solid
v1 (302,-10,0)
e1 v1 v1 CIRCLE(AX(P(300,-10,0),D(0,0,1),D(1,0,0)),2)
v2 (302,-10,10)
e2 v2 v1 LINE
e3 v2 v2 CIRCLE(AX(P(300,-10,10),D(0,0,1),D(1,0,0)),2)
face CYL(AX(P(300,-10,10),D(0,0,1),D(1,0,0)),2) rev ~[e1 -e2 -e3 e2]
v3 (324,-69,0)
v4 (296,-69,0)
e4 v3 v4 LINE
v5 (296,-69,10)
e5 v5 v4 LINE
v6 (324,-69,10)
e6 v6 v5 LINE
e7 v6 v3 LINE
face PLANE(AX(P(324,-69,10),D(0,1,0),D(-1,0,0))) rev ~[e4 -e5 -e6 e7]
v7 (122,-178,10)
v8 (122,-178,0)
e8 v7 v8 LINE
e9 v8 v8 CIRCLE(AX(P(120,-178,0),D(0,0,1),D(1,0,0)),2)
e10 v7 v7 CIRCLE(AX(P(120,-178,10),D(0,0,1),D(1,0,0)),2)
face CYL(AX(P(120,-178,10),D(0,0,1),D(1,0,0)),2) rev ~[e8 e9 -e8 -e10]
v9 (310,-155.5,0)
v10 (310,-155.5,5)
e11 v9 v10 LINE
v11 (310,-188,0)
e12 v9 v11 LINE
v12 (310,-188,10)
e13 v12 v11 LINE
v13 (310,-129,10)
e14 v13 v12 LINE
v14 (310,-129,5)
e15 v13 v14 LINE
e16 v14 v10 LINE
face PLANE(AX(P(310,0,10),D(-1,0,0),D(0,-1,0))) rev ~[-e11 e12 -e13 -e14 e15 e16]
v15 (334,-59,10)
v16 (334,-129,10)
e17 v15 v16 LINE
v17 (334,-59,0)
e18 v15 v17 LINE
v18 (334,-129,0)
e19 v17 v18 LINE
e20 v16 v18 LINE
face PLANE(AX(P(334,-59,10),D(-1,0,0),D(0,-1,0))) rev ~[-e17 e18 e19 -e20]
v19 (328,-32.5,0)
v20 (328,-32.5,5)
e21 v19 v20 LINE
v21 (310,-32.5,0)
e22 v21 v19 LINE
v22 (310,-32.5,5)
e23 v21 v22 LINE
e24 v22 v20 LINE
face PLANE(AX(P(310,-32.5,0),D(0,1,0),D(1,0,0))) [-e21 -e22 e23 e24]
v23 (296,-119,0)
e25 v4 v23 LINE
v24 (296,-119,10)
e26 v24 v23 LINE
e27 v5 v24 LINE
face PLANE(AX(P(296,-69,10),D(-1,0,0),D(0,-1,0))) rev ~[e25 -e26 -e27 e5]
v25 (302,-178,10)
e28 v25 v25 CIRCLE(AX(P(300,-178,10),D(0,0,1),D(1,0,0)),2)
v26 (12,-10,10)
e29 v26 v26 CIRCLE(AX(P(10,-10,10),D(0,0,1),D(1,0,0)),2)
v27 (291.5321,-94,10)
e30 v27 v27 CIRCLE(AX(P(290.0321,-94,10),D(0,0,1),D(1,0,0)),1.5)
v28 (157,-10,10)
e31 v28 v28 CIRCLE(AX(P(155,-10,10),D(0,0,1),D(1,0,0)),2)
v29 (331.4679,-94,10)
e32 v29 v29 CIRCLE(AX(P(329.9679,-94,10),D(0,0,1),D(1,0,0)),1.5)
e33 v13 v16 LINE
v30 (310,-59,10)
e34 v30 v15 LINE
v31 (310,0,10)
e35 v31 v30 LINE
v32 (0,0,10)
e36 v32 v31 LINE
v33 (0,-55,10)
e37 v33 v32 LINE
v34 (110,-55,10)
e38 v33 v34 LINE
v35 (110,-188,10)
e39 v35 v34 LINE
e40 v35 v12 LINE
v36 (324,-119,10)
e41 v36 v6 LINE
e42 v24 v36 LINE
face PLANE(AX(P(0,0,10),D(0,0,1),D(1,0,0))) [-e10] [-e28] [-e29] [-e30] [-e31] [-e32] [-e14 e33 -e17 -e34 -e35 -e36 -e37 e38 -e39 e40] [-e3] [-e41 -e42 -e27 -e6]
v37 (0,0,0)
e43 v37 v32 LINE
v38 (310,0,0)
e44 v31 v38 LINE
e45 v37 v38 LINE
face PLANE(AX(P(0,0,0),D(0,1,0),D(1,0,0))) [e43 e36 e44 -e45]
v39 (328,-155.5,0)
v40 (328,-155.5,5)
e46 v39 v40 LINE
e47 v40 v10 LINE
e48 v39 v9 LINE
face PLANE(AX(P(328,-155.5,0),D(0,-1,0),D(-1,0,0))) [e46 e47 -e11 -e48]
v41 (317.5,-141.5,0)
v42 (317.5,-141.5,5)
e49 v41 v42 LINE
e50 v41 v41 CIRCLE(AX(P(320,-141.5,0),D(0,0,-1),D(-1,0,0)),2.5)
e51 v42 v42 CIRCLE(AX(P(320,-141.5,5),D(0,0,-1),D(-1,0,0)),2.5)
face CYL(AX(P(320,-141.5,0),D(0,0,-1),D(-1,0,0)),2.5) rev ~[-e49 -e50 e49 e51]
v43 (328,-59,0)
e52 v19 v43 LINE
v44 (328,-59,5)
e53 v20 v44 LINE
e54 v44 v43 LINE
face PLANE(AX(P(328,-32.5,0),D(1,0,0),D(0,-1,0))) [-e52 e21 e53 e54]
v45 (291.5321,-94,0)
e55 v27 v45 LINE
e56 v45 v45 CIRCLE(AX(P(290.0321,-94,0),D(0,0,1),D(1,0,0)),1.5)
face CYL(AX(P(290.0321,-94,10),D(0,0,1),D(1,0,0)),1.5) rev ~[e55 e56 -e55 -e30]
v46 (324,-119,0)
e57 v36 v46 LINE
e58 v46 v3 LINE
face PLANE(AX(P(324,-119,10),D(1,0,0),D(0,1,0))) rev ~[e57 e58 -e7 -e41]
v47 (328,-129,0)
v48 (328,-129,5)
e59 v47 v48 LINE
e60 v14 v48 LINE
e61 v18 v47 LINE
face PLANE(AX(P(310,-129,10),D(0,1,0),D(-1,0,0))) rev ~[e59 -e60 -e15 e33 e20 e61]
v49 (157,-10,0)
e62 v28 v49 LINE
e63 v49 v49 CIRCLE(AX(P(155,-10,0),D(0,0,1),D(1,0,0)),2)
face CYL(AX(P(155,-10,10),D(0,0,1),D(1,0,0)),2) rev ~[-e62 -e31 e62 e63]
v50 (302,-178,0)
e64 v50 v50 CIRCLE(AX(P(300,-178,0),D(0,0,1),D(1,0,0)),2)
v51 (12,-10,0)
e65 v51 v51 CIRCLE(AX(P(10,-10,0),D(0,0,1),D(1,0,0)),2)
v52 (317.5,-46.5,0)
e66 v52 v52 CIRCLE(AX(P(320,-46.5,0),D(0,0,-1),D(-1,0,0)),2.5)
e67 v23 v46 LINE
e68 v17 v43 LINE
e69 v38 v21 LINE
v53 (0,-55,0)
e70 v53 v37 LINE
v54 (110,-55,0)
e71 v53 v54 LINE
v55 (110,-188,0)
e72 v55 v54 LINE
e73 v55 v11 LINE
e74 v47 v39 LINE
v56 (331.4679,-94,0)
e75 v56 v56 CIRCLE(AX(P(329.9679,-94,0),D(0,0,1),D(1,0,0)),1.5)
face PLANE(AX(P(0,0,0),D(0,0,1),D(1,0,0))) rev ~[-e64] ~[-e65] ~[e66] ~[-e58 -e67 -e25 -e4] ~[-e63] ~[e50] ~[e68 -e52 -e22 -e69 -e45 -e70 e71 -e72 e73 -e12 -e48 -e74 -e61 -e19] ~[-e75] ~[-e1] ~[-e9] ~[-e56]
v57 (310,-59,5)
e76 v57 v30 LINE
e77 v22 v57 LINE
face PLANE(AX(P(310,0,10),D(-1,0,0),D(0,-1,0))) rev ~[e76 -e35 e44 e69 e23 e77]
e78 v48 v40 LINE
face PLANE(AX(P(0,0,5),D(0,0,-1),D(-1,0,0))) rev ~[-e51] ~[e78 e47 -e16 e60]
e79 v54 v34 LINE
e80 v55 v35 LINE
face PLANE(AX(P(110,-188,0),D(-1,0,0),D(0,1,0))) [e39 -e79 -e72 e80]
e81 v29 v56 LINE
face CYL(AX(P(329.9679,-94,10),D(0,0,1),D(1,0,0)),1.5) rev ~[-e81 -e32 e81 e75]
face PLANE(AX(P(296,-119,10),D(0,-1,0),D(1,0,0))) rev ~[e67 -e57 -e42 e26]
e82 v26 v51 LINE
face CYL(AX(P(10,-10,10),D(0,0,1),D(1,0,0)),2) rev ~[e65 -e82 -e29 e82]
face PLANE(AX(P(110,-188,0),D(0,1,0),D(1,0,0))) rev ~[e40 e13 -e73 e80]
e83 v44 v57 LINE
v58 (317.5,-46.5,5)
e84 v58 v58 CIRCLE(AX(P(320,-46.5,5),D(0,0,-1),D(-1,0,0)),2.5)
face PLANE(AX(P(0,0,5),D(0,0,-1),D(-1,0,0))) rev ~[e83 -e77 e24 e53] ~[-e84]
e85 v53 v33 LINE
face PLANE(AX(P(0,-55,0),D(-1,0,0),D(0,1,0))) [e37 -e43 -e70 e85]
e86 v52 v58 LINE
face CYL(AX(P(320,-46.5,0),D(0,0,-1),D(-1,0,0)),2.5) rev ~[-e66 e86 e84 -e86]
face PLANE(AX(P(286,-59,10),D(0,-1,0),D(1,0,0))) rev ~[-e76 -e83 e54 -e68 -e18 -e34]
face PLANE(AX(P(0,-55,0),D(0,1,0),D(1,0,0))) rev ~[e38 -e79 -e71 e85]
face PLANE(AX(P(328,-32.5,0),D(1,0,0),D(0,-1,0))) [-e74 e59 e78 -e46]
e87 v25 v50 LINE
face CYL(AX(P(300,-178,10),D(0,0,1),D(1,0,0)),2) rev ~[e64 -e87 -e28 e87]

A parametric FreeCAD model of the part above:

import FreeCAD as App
import Part
import Sketcher
Q = App.Units.Quantity

doc = App.newDocument("Part")
body = doc.addObject("PartDesign::Body", "Body")

# Sketch on XY plane
sketch1 = doc.addObject("Sketcher::SketchObject", "Sketch")
body.addObject(sketch1)
sketch1.AttachmentSupport = (doc.XY_Plane, [""])
sketch1.MapMode = "FlatFace"
sketch1.addGeometry([
    Part.LineSegment(App.Vector(620, 0, 0), App.Vector(0, 0, 0)),  # 0
    Part.LineSegment(App.Vector(0, 0, 0), App.Vector(0, -55, 0)),  # 1
    Part.LineSegment(App.Vector(0, -55, 0), App.Vector(110, -55, 0)),  # 2
    Part.LineSegment(App.Vector(110, -55, 0), App.Vector(110, -188, 0)),  # 3
    Part.LineSegment(App.Vector(110, -188, 0), App.Vector(510, -188, 0)),  # 4
    Part.LineSegment(App.Vector(510, -188, 0), App.Vector(510, -55, 0)),  # 5
    Part.LineSegment(App.Vector(510, -55, 0), App.Vector(620, -55, 0)),  # 6
    Part.LineSegment(App.Vector(620, -55, 0), App.Vector(620, 0, 0)),  # 7
], False)
sketch1.addConstraint([
    Sketcher.Constraint("Coincident", 0, 2, 1, 1),
    Sketcher.Constraint("Coincident", 1, 2, 2, 1),
    Sketcher.Constraint("Coincident", 2, 2, 3, 1),
    Sketcher.Constraint("Coincident", 3, 2, 4, 1),
    Sketcher.Constraint("Coincident", 4, 2, 5, 1),
    Sketcher.Constraint("Coincident", 5, 2, 6, 1),
    Sketcher.Constraint("Coincident", 6, 2, 7, 1),
    Sketcher.Constraint("Coincident", 7, 2, 0, 1),
    Sketcher.Constraint("Horizontal", 0),
    Sketcher.Constraint("Vertical", 1),
    Sketcher.Constraint("Horizontal", 2),
    Sketcher.Constraint("Vertical", 3),
    Sketcher.Constraint("Horizontal", 4),
    Sketcher.Constraint("Vertical", 5),
    Sketcher.Constraint("Horizontal", 6),
    Sketcher.Constraint("Vertical", 7),
    Sketcher.Constraint("Coincident", 0, 2, -1, 1),
    Sketcher.Constraint("Horizontal", 2, 2, 5, 2),
    Sketcher.Constraint("Equal", 2, 6),
    Sketcher.Constraint("DistanceX", 0, 2, 0, 1, Q("620 mm")),
    Sketcher.Constraint("DistanceX", 4, 1, 4, 2, Q("400 mm")),
    Sketcher.Constraint("DistanceY", 3, 2, 3, 1, Q("133 mm")),
    Sketcher.Constraint("DistanceY", 3, 2, -1, 1, Q("188 mm")),
])
pad1 = doc.addObject("PartDesign::Pad", "Pad")
body.addObject(pad1)
pad1.Profile = sketch1
pad1.Length = 10

# Sketch on XY plane
sketch2 = doc.addObject("Sketcher::SketchObject", "Sketch001")
body.addObject(sketch2)
sketch2.AttachmentSupport = (doc.XY_Plane, [""])
sketch2.MapMode = "FlatFace"
sketch2.AttachmentOffset = App.Placement(App.Vector(0, 0, 10), App.Rotation())
sketch2.addGeometry([
    Part.LineSegment(App.Vector(620, -188, 0), App.Vector(620, 0, 0)),
    Part.LineSegment(App.Vector(620, 0, 0), App.Vector(310, 0, 0)),
    Part.LineSegment(App.Vector(310, 0, 0), App.Vector(310, -188, 0)),
    Part.LineSegment(App.Vector(310, -188, 0), App.Vector(620, -188, 0)),
], False)
sketch2.addConstraint([
    Sketcher.Constraint("Coincident", 0, 2, 1, 1),
    Sketcher.Constraint("Coincident", 1, 2, 2, 1),
    Sketcher.Constraint("Coincident", 2, 2, 3, 1),
    Sketcher.Constraint("Coincident", 3, 2, 0, 1),
    Sketcher.Constraint("Vertical", 0),
    Sketcher.Constraint("Horizontal", 1),
    Sketcher.Constraint("Vertical", 2),
    Sketcher.Constraint("Horizontal", 3),
    Sketcher.Constraint("PointOnObject", 0, 2, -1),
    Sketcher.Constraint("DistanceX", 1, 2, 1, 1, Q("310 mm")),
    Sketcher.Constraint("DistanceY", 0, 1, 0, 2, Q("188 mm")),
    Sketcher.Constraint("DistanceX", -1, 1, 0, 2, Q("620 mm")),
])
pocket1 = doc.addObject("PartDesign::Pocket", "Pocket")
body.addObject(pocket1)
pocket1.Profile = sketch2
pocket1.Type = "ThroughAll"

# Sketch on XY plane
sketch3 = doc.addObject("Sketcher::SketchObject", "Sketch002")
body.addObject(sketch3)
sketch3.AttachmentSupport = (doc.XY_Plane, [""])
sketch3.MapMode = "FlatFace"
sketch3.AttachmentOffset = App.Placement(App.Vector(0, 0, 10), App.Rotation())
sketch3.addGeometry([
    Part.Circle(App.Vector(10, -10, 0), App.Vector(0, 0, 1), 2),  # 0
    Part.Circle(App.Vector(155, -10, 0), App.Vector(0, 0, 1), 2),  # 1
    Part.Circle(App.Vector(300, -10, 0), App.Vector(0, 0, 1), 2),  # 2
    Part.Circle(App.Vector(120, -178, 0), App.Vector(0, 0, 1), 2),  # 3
    Part.Circle(App.Vector(300, -178, 0), App.Vector(0, 0, 1), 2),  # 4
], False)
sketch3.addConstraint([
    Sketcher.Constraint("Equal", 0, 1),
    Sketcher.Constraint("Equal", 1, 2),
    Sketcher.Constraint("Equal", 2, 3),
    Sketcher.Constraint("Equal", 3, 4),
    Sketcher.Constraint("Horizontal", 0, 3, 1, 3),
    Sketcher.Constraint("Horizontal", 1, 3, 2, 3),
    Sketcher.Constraint("Horizontal", 3, 3, 4, 3),
    Sketcher.Constraint("Vertical", 2, 3, 4, 3),
    Sketcher.Constraint("Diameter", 0, Q("4 mm")),
    Sketcher.Constraint("DistanceX", -1, 1, 0, 3, Q("10 mm")),
    Sketcher.Constraint("DistanceY", 0, 3, -1, 1, Q("10 mm")),
    Sketcher.Constraint("DistanceX", -1, 1, 1, 3, Q("155 mm")),
    Sketcher.Constraint("DistanceX", -1, 1, 2, 3, Q("300 mm")),
    Sketcher.Constraint("DistanceX", -1, 1, 3, 3, Q("120 mm")),
    Sketcher.Constraint("DistanceY", 3, 3, -1, 1, Q("178 mm")),
])
pocket2 = doc.addObject("PartDesign::Pocket", "Pocket001")
body.addObject(pocket2)
pocket2.Profile = sketch3
pocket2.Type = "ThroughAll"

# Sketch on XY plane
sketch4 = doc.addObject("Sketcher::SketchObject", "Sketch003")
body.addObject(sketch4)
sketch4.AttachmentSupport = (doc.XY_Plane, [""])
sketch4.MapMode = "FlatFace"
sketch4.addGeometry([
    Part.LineSegment(App.Vector(310, -155.5, 0), App.Vector(310, -32.5, 0)),  # 0
    Part.LineSegment(App.Vector(310, -32.5, 0), App.Vector(328, -32.5, 0)),  # 1
    Part.LineSegment(App.Vector(328, -32.5, 0), App.Vector(328, -155.5, 0)),  # 2
    Part.LineSegment(App.Vector(328, -155.5, 0), App.Vector(310, -155.5, 0)),  # 3
    Part.Circle(App.Vector(320, -141.5, 0), App.Vector(0, 0, 1), 2.5),  # 4
    Part.Circle(App.Vector(320, -46.5, 0), App.Vector(0, 0, 1), 2.5),  # 5
], False)
sketch4.addConstraint([
    Sketcher.Constraint("Coincident", 0, 2, 1, 1),
    Sketcher.Constraint("Coincident", 1, 2, 2, 1),
    Sketcher.Constraint("Coincident", 2, 2, 3, 1),
    Sketcher.Constraint("Coincident", 3, 2, 0, 1),
    Sketcher.Constraint("Vertical", 0),
    Sketcher.Constraint("Horizontal", 1),
    Sketcher.Constraint("Vertical", 2),
    Sketcher.Constraint("Horizontal", 3),
    Sketcher.Constraint("Equal", 4, 5),
    Sketcher.Constraint("Vertical", 4, 3, 5, 3),
    Sketcher.Constraint("Diameter", 4, Q("5 mm")),
    Sketcher.Constraint("DistanceX", 1, 1, 1, 2, Q("18 mm")),
    Sketcher.Constraint("DistanceY", 0, 1, 0, 2, Q("123 mm")),
    Sketcher.Constraint("DistanceY", 4, 3, 5, 3, Q("95 mm")),
    Sketcher.Constraint("DistanceX", 0, 2, 5, 3, Q("10 mm")),
    Sketcher.Constraint("DistanceX", -1, 1, 4, 3, Q("320 mm")),
    Sketcher.Constraint("DistanceY", 5, 3, 0, 2, Q("14 mm")),
    Sketcher.Constraint("DistanceY", 4, 3, -1, 1, Q("141.5 mm")),
])
pad2 = doc.addObject("PartDesign::Pad", "Pad001")
body.addObject(pad2)
pad2.Profile = sketch4
pad2.Length = 5

# Sketch on XY plane
sketch5 = doc.addObject("Sketcher::SketchObject", "Sketch004")
body.addObject(sketch5)
sketch5.AttachmentSupport = (doc.XY_Plane, [""])
sketch5.MapMode = "FlatFace"
sketch5.AttachmentOffset = App.Placement(App.Vector(0, 0, 10), App.Rotation())
sketch5.addGeometry([
    Part.LineSegment(App.Vector(286, -59, 0), App.Vector(286, -129, 0)),
    Part.LineSegment(App.Vector(286, -129, 0), App.Vector(334, -129, 0)),
    Part.LineSegment(App.Vector(334, -129, 0), App.Vector(334, -59, 0)),
    Part.LineSegment(App.Vector(334, -59, 0), App.Vector(286, -59, 0)),
], False)
sketch5.addConstraint([
    Sketcher.Constraint("Coincident", 0, 2, 1, 1),
    Sketcher.Constraint("Coincident", 1, 2, 2, 1),
    Sketcher.Constraint("Coincident", 2, 2, 3, 1),
    Sketcher.Constraint("Coincident", 3, 2, 0, 1),
    Sketcher.Constraint("Vertical", 0),
    Sketcher.Constraint("Horizontal", 1),
    Sketcher.Constraint("Vertical", 2),
    Sketcher.Constraint("Horizontal", 3),
    Sketcher.Constraint("DistanceX", 1, 1, 1, 2, Q("48 mm")),
    Sketcher.Constraint("DistanceY", 0, 2, 0, 1, Q("70 mm")),
    Sketcher.Constraint("DistanceX", -1, 1, 0, 2, Q("286 mm")),
    Sketcher.Constraint("DistanceY", 0, 2, -1, 1, Q("129 mm")),
])
pad3 = doc.addObject("PartDesign::Pad", "Pad002")
body.addObject(pad3)
pad3.Profile = sketch5
pad3.Length = 10
pad3.Reversed = True

# Sketch on XY plane
sketch6 = doc.addObject("Sketcher::SketchObject", "Sketch005")
body.addObject(sketch6)
sketch6.AttachmentSupport = (doc.XY_Plane, [""])
sketch6.MapMode = "FlatFace"
sketch6.AttachmentOffset = App.Placement(App.Vector(0, 0, 10), App.Rotation())
sketch6.addGeometry([
    Part.LineSegment(App.Vector(324, -119, 0), App.Vector(324, -69, 0)),  # 0
    Part.LineSegment(App.Vector(324, -69, 0), App.Vector(296, -69, 0)),  # 1
    Part.LineSegment(App.Vector(296, -69, 0), App.Vector(296, -119, 0)),  # 2
    Part.LineSegment(App.Vector(296, -119, 0), App.Vector(324, -119, 0)),  # 3
    Part.Circle(App.Vector(330, -94, 0), App.Vector(0, 0, 1), 1.5),  # 4
    Part.Circle(App.Vector(290, -94, 0), App.Vector(0, 0, 1), 1.5),  # 5
], False)
sketch6.addConstraint([
    Sketcher.Constraint("Coincident", 0, 2, 1, 1),
    Sketcher.Constraint("Coincident", 1, 2, 2, 1),
    Sketcher.Constraint("Coincident", 2, 2, 3, 1),
    Sketcher.Constraint("Coincident", 3, 2, 0, 1),
    Sketcher.Constraint("Vertical", 0),
    Sketcher.Constraint("Horizontal", 1),
    Sketcher.Constraint("Vertical", 2),
    Sketcher.Constraint("Horizontal", 3),
    Sketcher.Constraint("Equal", 4, 5),
    Sketcher.Constraint("Horizontal", 4, 3, 5, 3),
    Sketcher.Constraint("Diameter", 4, Q("3 mm")),
    Sketcher.Constraint("DistanceX", 1, 2, 1, 1, Q("28 mm")),
    Sketcher.Constraint("DistanceY", 0, 1, 0, 2, Q("50 mm")),
    Sketcher.Constraint("DistanceY", 4, 3, -1, 1, Q("94 mm")),
    Sketcher.Constraint("DistanceX", -1, 1, 0, 2, Q("324 mm")),
    Sketcher.Constraint("DistanceY", 0, 2, -1, 1, Q("69 mm")),
    Sketcher.Constraint("DistanceX", 5, 3, 4, 3, Q("39.9358 mm")),
    Sketcher.Constraint("DistanceX", -1, 1, 4, 3, Q("329.968 mm")),
])
pocket3 = doc.addObject("PartDesign::Pocket", "Pocket002")
body.addObject(pocket3)
pocket3.Profile = sketch6
pocket3.Type = "ThroughAll"

doc.recompute()
